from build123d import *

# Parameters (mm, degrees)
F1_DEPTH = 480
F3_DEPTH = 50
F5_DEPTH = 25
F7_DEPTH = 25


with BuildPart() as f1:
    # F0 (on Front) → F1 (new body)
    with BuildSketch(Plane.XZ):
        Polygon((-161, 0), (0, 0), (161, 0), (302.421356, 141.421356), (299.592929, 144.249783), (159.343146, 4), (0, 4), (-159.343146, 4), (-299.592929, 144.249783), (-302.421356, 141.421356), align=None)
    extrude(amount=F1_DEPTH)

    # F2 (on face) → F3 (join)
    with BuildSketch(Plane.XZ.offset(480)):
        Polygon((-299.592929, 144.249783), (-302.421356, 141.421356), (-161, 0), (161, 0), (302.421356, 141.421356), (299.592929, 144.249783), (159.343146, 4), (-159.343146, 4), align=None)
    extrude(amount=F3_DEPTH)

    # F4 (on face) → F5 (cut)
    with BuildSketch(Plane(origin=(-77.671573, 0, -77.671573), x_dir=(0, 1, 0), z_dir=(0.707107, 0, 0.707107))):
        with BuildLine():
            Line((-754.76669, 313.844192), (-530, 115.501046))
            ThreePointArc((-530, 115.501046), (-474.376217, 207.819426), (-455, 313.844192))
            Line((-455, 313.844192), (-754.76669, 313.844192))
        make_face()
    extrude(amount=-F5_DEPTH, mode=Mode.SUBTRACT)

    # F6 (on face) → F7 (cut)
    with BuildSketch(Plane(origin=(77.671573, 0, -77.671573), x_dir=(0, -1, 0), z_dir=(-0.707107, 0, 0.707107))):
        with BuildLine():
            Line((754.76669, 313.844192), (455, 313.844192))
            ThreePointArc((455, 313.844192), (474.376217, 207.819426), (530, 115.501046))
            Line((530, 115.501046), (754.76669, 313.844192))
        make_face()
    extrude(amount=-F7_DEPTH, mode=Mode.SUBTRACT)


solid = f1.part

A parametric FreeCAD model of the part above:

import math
import FreeCAD as App
import Part
import Sketcher
from FreeCAD import Vector
Q = App.Units.Quantity


def add_polygon(sketch, points):
    """Adds a closed chain of lines whose ends are joined by coincident constraints."""
    first, n = sketch.GeometryCount, len(points)
    for a, b in zip(points, points[1:] + points[:1]):
        sketch.addGeometry(Part.LineSegment(App.Vector(*a, 0), App.Vector(*b, 0)), False)
    for i in range(n):
        sketch.addConstraint(Sketcher.Constraint("Coincident", first + i, 2, first + (i + 1) % n, 1))

doc = App.newDocument("Part")
body = doc.addObject("PartDesign::Body", "Body")

# Sketch on XZ plane
sketch1 = doc.addObject("Sketcher::SketchObject", "Sketch")
body.addObject(sketch1)
sketch1.AttachmentSupport = (doc.XZ_Plane, [""])
sketch1.MapMode = "FlatFace"
add_polygon(sketch1, [(-161, 0), (161, 0), (302.421356, 141.421356), (299.592929, 144.249783), (159.343146, 4), (-159.343146, 4), (-299.592929, 144.249783), (-302.421356, 141.421356)])  # lines 0-7
sketch1.addConstraint([
    Sketcher.Constraint("Horizontal", 0),
    Sketcher.Constraint("Horizontal", 4),
    Sketcher.Constraint("Symmetric", 0, 2, 7, 2, -1, 1),
    Sketcher.Constraint("Symmetric", 2, 2, 5, 2, -2),
    Sketcher.Constraint("Symmetric", 1, 2, 6, 2, -2),
    Sketcher.Constraint("Perpendicular", 1, 2),
    Sketcher.Constraint("Perpendicular", 2, 3),
    Sketcher.Constraint("Perpendicular", 3, 5),
    Sketcher.Constraint("Perpendicular", 5, 6),
    Sketcher.Constraint("DistanceX", 0, 1, 0, 2, Q("322 mm")),
    Sketcher.Constraint("Distance", 1, Q("200 mm")),
    Sketcher.Constraint("Distance", 2, Q("4 mm")),
    Sketcher.Constraint("DistanceY", -1, 1, 3, 2, Q("4 mm")),
])
pad1 = doc.addObject("PartDesign::Pad", "Pad")
body.addObject(pad1)
pad1.Profile = sketch1
pad1.Length = 480

# Sketch on XZ plane
sketch2 = doc.addObject("Sketcher::SketchObject", "Sketch001")
body.addObject(sketch2)
sketch2.AttachmentSupport = (doc.XZ_Plane, [""])
sketch2.MapMode = "FlatFace"
sketch2.AttachmentOffset = App.Placement(Vector(0, 0, 480), App.Rotation())
add_polygon(sketch2, [(-299.592929, 144.249783), (-302.421356, 141.421356), (-161, 0), (161, 0), (302.421356, 141.421356), (299.592929, 144.249783), (159.343146, 4), (-159.343146, 4)])  # lines 0-7
sketch2.addConstraint([
    Sketcher.Constraint("Horizontal", 2),
    Sketcher.Constraint("Horizontal", 6),
    Sketcher.Constraint("Symmetric", 1, 2, 2, 2, -1, 1),
    Sketcher.Constraint("Symmetric", 0, 2, 3, 2, -2),
    Sketcher.Constraint("Symmetric", 4, 2, 7, 2, -2),
    Sketcher.Constraint("Perpendicular", 0, 1),
    Sketcher.Constraint("Perpendicular", 1, 3),
    Sketcher.Constraint("Perpendicular", 4, 5),
    Sketcher.Constraint("Perpendicular", 5, 7),
    Sketcher.Constraint("DistanceX", 2, 1, 2, 2, Q("322 mm")),
    Sketcher.Constraint("Distance", 0, Q("4 mm")),
    Sketcher.Constraint("Distance", 1, Q("200 mm")),
    Sketcher.Constraint("DistanceY", -1, 1, 5, 2, Q("4 mm")),
])
pad2 = doc.addObject("PartDesign::Pad", "Pad001")
body.addObject(pad2)
pad2.Profile = sketch2
pad2.Length = 50

# Sketch on an angled plane
sketch3 = doc.addObject("Sketcher::SketchObject", "Sketch002")
body.addObject(sketch3)
sketch3.Placement = App.Placement(Vector(-77.671573, 0, -77.671573), App.Rotation(Vector(0, 1, 0), Vector(-0.707106781, 0, 0.707106781), Vector(0.707106781, 0, 0.707106781), "ZXY"))
sketch3.addGeometry([
    Part.LineSegment(Vector(-754.76669, 313.844192, 0), Vector(-530, 115.501046, 0)),
    Part.ArcOfCircle(Part.Circle(Vector(-754.766693, 313.844193, 0), Vector(0, 0, 1), 299.766693), math.radians(-41.426474), math.radians(0)),
    Part.LineSegment(Vector(-455, 313.844192, 0), Vector(-754.76669, 313.844192, 0)),
], False)
sketch3.addConstraint([
    Sketcher.Constraint("Coincident", 0, 2, 1, 1),
    Sketcher.Constraint("Coincident", 1, 2, 2, 1),
    Sketcher.Constraint("Coincident", 2, 2, 0, 1),
    Sketcher.Constraint("Horizontal", 2),
    Sketcher.Constraint("Coincident", 2, 2, 1, 3),
    Sketcher.Constraint("DistanceX", 0, 2, -1, 1, Q("530 mm")),
    Sketcher.Constraint("DistanceX", 1, 2, -1, 1, Q("455 mm")),
    Sketcher.Constraint("Radius", 1, Q("299.766693 mm")),
    Sketcher.Constraint("DistanceY", -1, 1, 2, 2, Q("313.844192 mm")),
])
pocket1 = doc.addObject("PartDesign::Pocket", "Pocket")
body.addObject(pocket1)
pocket1.Profile = sketch3
pocket1.Length = 25

# Sketch on an angled plane
sketch4 = doc.addObject("Sketcher::SketchObject", "Sketch003")
body.addObject(sketch4)
sketch4.Placement = App.Placement(Vector(77.671573, 0, -77.671573), App.Rotation(Vector(0, -1, 0), Vector(0.707106781, 0, 0.707106781), Vector(-0.707106781, 0, 0.707106781), "ZXY"))
sketch4.addGeometry([
    Part.LineSegment(Vector(754.76669, 313.844192, 0), Vector(455, 313.844192, 0)),
    Part.ArcOfCircle(Part.Circle(Vector(754.766693, 313.844193, 0), Vector(0, 0, 1), 299.766693), math.radians(-180), math.radians(-138.573526)),
    Part.LineSegment(Vector(530, 115.501046, 0), Vector(754.76669, 313.844192, 0)),
], False)
sketch4.addConstraint([
    Sketcher.Constraint("Coincident", 0, 2, 1, 1),
    Sketcher.Constraint("Coincident", 1, 2, 2, 1),
    Sketcher.Constraint("Coincident", 2, 2, 0, 1),
    Sketcher.Constraint("Horizontal", 0),
    Sketcher.Constraint("Coincident", 2, 2, 1, 3),
    Sketcher.Constraint("DistanceX", -1, 1, 0, 2, Q("455 mm")),
    Sketcher.Constraint("DistanceX", -1, 1, 1, 2, Q("530 mm")),
    Sketcher.Constraint("Radius", 1, Q("299.766693 mm")),
    Sketcher.Constraint("DistanceY", -1, 1, 0, 2, Q("313.844192 mm")),
])
pocket2 = doc.addObject("PartDesign::Pocket", "Pocket001")
body.addObject(pocket2)
pocket2.Profile = sketch4
pocket2.Length = 25

doc.recompute()
